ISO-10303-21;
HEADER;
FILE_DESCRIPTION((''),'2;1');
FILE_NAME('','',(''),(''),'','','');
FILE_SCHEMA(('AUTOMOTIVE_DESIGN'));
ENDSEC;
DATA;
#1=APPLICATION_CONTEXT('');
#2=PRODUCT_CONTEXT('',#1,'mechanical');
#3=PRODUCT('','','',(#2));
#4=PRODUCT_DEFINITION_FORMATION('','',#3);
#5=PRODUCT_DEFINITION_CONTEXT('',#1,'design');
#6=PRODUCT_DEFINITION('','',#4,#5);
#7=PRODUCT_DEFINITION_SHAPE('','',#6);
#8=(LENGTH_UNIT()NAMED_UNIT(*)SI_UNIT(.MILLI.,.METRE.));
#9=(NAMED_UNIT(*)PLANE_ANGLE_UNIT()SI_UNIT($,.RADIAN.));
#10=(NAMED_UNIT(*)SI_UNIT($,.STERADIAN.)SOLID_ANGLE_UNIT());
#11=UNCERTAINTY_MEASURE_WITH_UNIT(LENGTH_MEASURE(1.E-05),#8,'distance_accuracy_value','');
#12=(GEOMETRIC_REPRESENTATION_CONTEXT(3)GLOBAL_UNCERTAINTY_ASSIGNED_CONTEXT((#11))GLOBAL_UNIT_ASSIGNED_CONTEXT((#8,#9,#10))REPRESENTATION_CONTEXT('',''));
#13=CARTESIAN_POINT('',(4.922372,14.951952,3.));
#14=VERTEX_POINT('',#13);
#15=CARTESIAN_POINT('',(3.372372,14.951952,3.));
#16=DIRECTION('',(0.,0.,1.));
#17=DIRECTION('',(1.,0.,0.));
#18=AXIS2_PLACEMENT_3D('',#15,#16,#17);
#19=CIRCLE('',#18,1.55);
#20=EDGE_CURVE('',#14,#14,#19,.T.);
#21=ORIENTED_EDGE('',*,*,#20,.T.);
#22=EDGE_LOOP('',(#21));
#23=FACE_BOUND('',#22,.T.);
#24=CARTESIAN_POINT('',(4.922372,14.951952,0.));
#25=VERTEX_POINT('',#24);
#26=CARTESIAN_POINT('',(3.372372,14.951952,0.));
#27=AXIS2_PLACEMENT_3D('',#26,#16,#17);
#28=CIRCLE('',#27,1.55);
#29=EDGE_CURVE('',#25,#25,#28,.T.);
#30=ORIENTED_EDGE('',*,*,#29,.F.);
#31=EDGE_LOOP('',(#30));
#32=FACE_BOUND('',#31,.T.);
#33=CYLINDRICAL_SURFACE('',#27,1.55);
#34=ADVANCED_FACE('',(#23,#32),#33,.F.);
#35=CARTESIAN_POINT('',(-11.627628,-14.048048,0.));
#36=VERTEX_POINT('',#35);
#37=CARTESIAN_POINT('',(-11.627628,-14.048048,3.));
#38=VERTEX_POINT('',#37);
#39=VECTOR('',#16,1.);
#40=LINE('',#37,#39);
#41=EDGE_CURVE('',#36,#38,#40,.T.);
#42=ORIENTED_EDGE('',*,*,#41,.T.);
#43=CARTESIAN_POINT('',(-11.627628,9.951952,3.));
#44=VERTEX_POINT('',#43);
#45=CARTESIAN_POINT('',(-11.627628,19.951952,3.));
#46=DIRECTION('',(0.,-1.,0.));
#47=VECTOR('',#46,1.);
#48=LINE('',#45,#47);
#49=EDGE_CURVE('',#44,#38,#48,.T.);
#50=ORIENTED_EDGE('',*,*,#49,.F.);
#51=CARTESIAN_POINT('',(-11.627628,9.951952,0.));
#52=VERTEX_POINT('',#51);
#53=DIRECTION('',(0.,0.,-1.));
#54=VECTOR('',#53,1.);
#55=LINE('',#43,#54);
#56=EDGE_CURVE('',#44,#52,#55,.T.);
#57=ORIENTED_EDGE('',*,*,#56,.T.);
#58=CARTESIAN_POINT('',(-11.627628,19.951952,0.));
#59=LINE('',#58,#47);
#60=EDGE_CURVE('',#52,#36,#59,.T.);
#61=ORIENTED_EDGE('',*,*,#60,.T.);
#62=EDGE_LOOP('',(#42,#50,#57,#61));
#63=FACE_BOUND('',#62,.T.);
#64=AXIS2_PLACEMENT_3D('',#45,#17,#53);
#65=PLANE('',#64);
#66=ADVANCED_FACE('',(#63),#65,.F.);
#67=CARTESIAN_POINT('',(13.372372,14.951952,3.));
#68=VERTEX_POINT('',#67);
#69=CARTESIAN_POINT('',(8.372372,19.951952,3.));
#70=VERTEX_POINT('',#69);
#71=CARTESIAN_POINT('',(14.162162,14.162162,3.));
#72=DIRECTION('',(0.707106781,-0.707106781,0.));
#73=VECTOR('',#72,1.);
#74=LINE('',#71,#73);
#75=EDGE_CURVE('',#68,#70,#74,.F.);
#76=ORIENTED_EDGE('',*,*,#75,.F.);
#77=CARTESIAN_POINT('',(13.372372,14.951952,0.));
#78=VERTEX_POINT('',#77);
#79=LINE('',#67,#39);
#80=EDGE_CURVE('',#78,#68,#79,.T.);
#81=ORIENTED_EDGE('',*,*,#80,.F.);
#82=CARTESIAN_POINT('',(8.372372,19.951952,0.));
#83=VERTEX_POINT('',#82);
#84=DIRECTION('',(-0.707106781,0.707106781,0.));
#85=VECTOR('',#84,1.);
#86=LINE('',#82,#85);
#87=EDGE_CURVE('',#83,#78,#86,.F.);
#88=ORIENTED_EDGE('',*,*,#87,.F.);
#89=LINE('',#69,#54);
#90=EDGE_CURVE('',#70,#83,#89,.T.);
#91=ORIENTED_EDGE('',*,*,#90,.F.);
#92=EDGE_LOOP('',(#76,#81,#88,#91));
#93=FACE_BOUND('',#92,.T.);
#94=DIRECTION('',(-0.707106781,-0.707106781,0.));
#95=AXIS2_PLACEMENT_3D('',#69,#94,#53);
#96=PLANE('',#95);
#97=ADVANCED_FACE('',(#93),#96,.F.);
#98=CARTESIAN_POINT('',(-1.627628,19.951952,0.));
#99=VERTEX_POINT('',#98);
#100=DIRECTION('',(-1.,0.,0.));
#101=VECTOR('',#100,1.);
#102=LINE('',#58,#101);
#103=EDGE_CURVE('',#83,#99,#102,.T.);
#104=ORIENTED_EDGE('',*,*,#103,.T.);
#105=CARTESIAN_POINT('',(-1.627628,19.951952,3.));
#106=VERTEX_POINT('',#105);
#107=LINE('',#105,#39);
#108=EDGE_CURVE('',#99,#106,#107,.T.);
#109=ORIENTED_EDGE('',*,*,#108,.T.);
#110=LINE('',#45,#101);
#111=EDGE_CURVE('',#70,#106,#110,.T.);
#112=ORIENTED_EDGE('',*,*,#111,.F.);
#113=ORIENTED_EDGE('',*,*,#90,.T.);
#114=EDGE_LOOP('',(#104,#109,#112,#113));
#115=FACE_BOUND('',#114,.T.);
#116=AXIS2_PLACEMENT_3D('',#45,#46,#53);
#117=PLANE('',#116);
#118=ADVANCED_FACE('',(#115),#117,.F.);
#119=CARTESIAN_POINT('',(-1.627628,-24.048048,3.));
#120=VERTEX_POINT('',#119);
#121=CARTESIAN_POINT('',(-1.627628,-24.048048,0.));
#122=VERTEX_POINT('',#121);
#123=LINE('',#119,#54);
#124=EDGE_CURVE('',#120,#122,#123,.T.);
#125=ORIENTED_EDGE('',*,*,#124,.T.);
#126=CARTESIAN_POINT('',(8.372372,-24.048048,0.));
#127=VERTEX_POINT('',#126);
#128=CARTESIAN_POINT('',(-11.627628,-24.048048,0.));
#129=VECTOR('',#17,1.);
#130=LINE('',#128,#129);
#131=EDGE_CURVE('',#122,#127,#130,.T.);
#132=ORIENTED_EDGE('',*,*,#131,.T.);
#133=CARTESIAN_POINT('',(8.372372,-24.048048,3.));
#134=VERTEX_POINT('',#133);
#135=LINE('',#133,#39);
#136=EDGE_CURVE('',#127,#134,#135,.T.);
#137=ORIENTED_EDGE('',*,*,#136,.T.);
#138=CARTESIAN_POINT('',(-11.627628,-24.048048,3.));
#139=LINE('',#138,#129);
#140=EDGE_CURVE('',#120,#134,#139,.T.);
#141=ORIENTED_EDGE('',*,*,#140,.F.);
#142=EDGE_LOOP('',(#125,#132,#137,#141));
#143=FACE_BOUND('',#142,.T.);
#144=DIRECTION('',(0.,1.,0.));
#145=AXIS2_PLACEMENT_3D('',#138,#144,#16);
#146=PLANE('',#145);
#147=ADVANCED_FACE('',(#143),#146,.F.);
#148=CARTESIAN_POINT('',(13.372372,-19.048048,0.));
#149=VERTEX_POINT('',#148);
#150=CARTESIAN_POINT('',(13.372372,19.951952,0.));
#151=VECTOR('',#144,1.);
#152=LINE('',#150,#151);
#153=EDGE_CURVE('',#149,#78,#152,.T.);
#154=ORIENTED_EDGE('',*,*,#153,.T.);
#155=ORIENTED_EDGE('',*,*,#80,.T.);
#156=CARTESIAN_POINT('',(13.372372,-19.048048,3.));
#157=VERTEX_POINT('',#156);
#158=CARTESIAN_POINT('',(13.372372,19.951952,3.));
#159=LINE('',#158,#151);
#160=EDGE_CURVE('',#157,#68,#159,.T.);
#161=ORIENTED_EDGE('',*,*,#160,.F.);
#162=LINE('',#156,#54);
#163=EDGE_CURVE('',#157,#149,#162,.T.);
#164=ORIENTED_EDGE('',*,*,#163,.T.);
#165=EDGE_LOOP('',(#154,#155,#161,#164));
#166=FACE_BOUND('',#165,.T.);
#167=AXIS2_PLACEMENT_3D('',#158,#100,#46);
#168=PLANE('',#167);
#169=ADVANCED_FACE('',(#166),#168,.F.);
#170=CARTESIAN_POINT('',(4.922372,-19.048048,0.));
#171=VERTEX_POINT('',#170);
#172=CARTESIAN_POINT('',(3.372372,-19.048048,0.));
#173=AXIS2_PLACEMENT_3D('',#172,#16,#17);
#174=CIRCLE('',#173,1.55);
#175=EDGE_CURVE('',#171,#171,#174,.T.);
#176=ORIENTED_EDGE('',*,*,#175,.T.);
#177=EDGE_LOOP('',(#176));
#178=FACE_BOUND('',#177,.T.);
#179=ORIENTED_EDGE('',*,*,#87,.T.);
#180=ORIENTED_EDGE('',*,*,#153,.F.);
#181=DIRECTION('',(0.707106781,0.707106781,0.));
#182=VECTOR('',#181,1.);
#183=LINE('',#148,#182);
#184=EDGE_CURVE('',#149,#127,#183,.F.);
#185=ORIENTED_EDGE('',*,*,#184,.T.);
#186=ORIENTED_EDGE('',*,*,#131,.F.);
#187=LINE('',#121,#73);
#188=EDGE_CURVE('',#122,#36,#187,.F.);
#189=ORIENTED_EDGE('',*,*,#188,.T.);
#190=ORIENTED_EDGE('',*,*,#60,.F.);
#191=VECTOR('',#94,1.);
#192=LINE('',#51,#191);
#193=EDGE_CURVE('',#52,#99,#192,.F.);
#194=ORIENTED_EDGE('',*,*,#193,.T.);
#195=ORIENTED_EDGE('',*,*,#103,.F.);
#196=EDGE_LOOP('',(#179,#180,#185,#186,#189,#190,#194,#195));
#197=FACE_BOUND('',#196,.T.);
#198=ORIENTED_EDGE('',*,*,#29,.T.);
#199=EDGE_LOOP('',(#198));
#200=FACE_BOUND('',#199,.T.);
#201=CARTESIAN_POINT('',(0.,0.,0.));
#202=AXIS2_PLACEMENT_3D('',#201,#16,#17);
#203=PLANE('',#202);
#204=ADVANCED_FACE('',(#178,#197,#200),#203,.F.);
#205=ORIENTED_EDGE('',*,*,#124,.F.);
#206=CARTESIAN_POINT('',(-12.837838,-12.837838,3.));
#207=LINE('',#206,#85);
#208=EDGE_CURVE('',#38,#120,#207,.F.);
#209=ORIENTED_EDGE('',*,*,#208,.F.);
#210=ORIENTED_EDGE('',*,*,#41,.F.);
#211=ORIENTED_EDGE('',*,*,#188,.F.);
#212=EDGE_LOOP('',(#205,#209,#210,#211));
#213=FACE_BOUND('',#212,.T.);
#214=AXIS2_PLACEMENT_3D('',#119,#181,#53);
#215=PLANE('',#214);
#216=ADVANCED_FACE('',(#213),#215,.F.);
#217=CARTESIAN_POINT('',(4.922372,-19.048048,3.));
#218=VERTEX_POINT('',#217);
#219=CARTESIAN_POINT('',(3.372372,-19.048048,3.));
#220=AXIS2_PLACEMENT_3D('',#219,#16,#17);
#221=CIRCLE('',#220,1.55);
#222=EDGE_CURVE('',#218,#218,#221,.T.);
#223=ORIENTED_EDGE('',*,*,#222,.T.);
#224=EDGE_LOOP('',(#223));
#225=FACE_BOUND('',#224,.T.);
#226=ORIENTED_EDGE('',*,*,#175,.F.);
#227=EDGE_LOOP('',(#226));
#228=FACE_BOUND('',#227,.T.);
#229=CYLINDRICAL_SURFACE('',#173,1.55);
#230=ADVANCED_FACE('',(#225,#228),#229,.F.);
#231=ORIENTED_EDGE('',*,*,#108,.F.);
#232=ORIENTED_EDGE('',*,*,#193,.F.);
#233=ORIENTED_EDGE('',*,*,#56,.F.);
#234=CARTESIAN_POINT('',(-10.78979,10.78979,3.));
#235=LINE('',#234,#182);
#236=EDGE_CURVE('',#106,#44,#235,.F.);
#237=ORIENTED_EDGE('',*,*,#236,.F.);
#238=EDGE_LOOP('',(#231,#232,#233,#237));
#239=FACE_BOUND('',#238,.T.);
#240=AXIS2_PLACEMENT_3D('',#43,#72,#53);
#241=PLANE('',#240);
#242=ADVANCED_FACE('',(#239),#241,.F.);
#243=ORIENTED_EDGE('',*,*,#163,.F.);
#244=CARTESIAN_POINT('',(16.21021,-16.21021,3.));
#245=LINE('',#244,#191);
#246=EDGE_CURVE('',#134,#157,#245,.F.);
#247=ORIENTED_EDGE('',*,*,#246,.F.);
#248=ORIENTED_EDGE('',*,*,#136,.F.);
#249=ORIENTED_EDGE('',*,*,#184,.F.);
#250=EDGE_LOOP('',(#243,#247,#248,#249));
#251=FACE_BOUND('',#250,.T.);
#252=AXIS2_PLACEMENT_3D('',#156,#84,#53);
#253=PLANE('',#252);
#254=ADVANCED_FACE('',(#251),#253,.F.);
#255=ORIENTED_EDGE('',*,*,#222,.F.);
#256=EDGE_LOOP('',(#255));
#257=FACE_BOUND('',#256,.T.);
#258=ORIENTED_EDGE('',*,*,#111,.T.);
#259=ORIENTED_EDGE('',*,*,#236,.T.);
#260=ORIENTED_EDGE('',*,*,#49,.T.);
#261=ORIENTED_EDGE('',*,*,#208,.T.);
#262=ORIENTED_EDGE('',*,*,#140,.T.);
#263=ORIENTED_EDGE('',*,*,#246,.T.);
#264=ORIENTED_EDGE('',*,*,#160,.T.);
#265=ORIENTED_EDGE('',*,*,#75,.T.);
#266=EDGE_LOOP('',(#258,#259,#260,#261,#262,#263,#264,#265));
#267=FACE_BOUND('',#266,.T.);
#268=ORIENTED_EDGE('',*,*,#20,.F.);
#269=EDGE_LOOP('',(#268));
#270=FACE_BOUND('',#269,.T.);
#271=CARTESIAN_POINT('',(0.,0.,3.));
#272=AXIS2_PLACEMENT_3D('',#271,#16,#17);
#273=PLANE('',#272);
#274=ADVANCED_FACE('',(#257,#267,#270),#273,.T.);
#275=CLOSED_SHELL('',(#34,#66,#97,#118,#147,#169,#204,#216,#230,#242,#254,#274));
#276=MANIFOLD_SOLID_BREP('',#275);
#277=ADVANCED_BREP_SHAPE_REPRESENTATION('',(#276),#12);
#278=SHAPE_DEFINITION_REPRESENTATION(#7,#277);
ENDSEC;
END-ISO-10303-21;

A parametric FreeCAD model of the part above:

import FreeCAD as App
import Part
import Sketcher
from FreeCAD import Vector


def edges_at(feature, points):
    """Names of the edges that pass closest to the given points."""
    edges = feature.Shape.Edges
    near = lambda p: min(range(len(edges)), key=lambda i: edges[i].distToShape(Part.Vertex(*p))[0])
    return sorted({f"Edge{near(p) + 1}" for p in points})

doc = App.newDocument("Part")
body = doc.addObject("PartDesign::Body", "Body")

# Sketch on XY plane
sketch1 = body.newObject("Sketcher::SketchObject", "Sketch")
sketch1.AttachmentSupport = (doc.getObject("XY_Plane"), [""])
sketch1.MapMode = "FlatFace"
sketch1.addGeometry([
    Part.LineSegment(Vector(-12, 20, 0), Vector(-12, -24, 0)),
    Part.LineSegment(Vector(-12, -24, 0), Vector(13, -24, 0)),
    Part.LineSegment(Vector(13, -24, 0), Vector(13, 20, 0)),
    Part.LineSegment(Vector(13, 20, 0), Vector(-12, 20, 0)),
], False)
sketch1.addConstraint([
    Sketcher.Constraint("Coincident", 0, 2, 1, 1),
    Sketcher.Constraint("Coincident", 1, 2, 2, 1),
    Sketcher.Constraint("Coincident", 2, 2, 3, 1),
    Sketcher.Constraint("Coincident", 3, 2, 0, 1),
    Sketcher.Constraint("Vertical", 0),
    Sketcher.Constraint("Horizontal", 1),
    Sketcher.Constraint("Vertical", 2),
    Sketcher.Constraint("Horizontal", 3),
    Sketcher.Constraint("DistanceX", 1, 1, 1, 2, 25.0),
    Sketcher.Constraint("DistanceY", 0, 2, 0, 1, 44.0),
    Sketcher.Constraint("DistanceY", 0, 2, -1, 1, 24.048048),
    Sketcher.Constraint("DistanceX", 0, 2, -1, 1, 11.627628),
])
pad1 = body.newObject("PartDesign::Pad", "Pad")
pad1.Profile = sketch1
pad1.Length = 3
doc.recompute()

chamfer = body.newObject("PartDesign::Chamfer", "Chamfer")
chamfer.Base = (pad1, edges_at(pad1, [(-11.628, 19.952, 1.5), (-11.628, -24.048, 1.5)]))
chamfer.Size = 10
doc.recompute()

chamfer2 = body.newObject("PartDesign::Chamfer", "Chamfer001")
chamfer2.Base = (chamfer, edges_at(chamfer, [(13.372, 19.952, 1.5), (13.372, -24.048, 1.5)]))
chamfer2.Size = 5

# Sketch on XY plane
sketch2 = body.newObject("Sketcher::SketchObject", "Sketch001")
sketch2.AttachmentSupport = (doc.getObject("XY_Plane"), [""])
sketch2.MapMode = "FlatFace"
sketch2.AttachmentOffset = App.Placement(Vector(0, 0, 3), App.Rotation())
sketch2.addGeometry([
    Part.Circle(Vector(3.4, 15, 0), Vector(0, 0, 1), 1.6),
    Part.Circle(Vector(3.4, -19, 0), Vector(0, 0, 1), 1.6),
], False)
sketch2.addConstraint([
    Sketcher.Constraint("Equal", 0, 1),
    Sketcher.Constraint("Vertical", 0, 3, 1, 3),
    Sketcher.Constraint("Diameter", 0, 3.1),
    Sketcher.Constraint("DistanceY", 1, 3, 0, 3, 34.0),
    Sketcher.Constraint("DistanceY", -1, 1, 0, 3, 14.951952),
    Sketcher.Constraint("DistanceX", -1, 1, 0, 3, 3.372372),
])
pocket1 = body.newObject("PartDesign::Pocket", "Pocket")
pocket1.Profile = sketch2
pocket1.Length = 3

doc.recompute()
